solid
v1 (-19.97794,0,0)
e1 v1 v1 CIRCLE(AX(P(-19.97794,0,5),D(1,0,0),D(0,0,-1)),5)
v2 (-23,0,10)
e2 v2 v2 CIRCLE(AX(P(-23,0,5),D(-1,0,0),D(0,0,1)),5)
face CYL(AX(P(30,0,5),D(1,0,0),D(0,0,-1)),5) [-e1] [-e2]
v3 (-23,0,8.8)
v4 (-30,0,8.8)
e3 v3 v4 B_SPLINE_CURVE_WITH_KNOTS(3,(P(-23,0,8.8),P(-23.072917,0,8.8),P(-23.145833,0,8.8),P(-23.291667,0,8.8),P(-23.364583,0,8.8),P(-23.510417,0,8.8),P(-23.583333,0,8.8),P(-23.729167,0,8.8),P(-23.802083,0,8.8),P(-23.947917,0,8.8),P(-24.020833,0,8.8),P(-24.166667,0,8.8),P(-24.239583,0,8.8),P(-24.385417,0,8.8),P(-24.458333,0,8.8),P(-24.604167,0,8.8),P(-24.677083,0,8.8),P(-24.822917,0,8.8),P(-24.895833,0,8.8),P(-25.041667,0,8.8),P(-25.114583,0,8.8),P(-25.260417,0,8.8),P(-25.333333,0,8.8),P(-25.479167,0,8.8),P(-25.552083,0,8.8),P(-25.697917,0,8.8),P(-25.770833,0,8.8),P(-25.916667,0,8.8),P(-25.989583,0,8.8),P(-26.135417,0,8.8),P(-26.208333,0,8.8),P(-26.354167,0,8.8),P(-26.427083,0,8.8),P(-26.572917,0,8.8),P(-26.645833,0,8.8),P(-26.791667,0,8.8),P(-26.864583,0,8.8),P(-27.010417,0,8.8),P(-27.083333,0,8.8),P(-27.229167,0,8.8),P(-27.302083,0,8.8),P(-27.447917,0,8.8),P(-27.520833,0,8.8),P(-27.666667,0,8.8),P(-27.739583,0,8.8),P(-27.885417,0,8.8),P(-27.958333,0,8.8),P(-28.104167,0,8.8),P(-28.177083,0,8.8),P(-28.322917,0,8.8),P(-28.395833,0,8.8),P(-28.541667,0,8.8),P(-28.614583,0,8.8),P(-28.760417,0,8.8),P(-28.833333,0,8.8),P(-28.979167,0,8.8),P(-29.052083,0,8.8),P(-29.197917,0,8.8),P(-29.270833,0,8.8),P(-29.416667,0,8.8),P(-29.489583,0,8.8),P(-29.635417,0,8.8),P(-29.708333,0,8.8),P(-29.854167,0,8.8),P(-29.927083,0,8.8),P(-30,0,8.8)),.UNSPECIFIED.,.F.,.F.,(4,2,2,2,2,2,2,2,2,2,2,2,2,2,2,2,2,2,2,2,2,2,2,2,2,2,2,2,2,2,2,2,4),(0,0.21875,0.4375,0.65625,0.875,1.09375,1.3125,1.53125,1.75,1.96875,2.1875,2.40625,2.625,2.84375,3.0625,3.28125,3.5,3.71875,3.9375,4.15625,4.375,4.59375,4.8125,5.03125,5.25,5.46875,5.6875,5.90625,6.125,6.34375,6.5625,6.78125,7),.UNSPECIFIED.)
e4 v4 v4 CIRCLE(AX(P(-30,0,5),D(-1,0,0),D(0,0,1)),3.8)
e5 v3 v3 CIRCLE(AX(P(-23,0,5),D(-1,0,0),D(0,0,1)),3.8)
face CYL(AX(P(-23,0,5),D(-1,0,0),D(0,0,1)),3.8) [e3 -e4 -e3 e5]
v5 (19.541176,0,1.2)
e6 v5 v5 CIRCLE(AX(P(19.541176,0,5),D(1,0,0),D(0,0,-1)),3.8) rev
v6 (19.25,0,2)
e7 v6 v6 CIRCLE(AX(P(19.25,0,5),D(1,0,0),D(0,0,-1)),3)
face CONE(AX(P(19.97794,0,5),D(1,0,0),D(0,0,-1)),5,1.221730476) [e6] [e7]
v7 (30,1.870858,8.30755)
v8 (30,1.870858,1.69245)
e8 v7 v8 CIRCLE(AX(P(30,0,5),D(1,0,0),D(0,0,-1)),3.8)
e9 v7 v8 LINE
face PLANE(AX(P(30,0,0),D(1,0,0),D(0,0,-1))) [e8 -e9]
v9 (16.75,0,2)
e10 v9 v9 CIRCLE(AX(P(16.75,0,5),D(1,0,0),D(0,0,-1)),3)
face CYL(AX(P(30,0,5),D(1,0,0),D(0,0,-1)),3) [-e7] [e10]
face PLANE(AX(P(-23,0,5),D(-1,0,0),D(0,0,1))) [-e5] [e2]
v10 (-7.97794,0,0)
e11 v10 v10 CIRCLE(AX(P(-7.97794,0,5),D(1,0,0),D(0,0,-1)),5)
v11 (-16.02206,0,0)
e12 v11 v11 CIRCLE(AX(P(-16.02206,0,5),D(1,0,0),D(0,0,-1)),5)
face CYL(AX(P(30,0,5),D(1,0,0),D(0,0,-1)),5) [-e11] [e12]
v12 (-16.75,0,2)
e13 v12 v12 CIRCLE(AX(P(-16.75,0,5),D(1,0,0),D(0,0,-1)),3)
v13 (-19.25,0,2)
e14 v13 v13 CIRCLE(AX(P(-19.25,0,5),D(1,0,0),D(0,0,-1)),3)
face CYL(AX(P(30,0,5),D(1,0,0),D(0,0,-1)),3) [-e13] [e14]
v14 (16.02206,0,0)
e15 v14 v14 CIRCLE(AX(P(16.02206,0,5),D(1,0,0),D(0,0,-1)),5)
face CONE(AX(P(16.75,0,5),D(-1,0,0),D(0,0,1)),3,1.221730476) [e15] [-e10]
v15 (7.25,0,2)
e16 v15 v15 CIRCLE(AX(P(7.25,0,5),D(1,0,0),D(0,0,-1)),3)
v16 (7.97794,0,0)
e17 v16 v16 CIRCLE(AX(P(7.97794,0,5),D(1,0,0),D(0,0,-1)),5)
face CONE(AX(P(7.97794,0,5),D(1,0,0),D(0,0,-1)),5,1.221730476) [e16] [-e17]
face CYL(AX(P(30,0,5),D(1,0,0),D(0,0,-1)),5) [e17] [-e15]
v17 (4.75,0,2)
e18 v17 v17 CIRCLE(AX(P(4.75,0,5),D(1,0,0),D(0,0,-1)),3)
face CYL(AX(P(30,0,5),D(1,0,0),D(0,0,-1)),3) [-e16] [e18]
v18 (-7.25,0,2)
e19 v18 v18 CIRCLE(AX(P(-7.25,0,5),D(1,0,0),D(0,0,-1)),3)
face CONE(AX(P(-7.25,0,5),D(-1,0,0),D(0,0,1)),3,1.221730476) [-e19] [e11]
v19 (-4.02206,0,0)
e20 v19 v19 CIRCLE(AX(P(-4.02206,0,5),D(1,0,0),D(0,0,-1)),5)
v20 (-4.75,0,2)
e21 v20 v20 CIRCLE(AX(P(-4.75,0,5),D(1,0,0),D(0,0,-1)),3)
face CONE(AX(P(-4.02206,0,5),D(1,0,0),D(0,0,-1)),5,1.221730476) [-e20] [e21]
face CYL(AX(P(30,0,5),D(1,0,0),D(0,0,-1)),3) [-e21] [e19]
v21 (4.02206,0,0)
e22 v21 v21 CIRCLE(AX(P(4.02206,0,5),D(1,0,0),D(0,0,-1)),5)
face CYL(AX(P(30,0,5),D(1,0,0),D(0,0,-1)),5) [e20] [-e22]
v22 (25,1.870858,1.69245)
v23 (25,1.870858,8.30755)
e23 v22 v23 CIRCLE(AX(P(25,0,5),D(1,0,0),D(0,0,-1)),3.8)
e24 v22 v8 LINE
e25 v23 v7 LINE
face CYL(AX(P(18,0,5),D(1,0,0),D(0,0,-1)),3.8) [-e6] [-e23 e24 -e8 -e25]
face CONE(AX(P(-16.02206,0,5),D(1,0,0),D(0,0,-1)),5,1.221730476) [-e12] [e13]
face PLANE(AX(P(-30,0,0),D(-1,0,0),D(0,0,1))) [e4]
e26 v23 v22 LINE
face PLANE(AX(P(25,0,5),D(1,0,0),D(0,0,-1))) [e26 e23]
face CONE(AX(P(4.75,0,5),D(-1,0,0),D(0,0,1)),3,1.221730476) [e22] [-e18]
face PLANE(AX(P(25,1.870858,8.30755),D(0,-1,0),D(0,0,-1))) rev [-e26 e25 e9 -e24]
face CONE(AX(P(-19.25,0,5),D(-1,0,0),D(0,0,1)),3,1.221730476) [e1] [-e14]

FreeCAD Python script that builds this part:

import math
import FreeCAD as App
import Part
import Sketcher
from FreeCAD import Vector
Q = App.Units.Quantity

doc = App.newDocument("Part")
params = doc.addObject("Spreadsheet::Sheet", "Params")
for row, (alias, value) in enumerate([
    ("sketch1_width", "60 mm"),
    ("sketch1_height", "5 mm"),
    ("sketch1_width2", "2.5 mm"),
    ("revolution_angle", "360 deg"),
    ("sketch2_diameter", "10 mm"),
    ("sketch2_diameter2", "7.6 mm"),
    ("pocket1_length", "7 mm"),
    ("sketch3_diameter", "10 mm"),
    ("sketch3_diameter2", "7.6 mm"),
    ("pocket2_length", "12 mm"),
    ("sketch4_radius", "3.8 mm"),
    ("pocket3_length", "5 mm"),
], start=1):
    params.set(f"A{row}", alias)
    params.set(f"B{row}", "=" + value)
    params.setAlias(f"B{row}", alias)

body = doc.addObject("PartDesign::Body", "Body")

# Sketch on XZ plane
sketch1 = body.newObject("Sketcher::SketchObject", "Sketch")
sketch1.AttachmentSupport = (doc.getObject("XZ_Plane"), [""])
sketch1.MapMode = "FlatFace"
sketch1.addGeometry([
    Part.LineSegment(Vector(-30, 5, 0), Vector(30, 5, 0)),  # 0
    Part.LineSegment(Vector(30, 5, 0), Vector(30, 0, 0)),  # 1
    Part.LineSegment(Vector(30, 0, 0), Vector(20, 0, 0)),  # 2
    Part.LineSegment(Vector(20, 0, 0), Vector(19.2, 2, 0)),  # 3
    Part.LineSegment(Vector(19.2, 2, 0), Vector(16.8, 2, 0)),  # 4
    Part.LineSegment(Vector(16.8, 2, 0), Vector(16, 0, 0)),  # 5
    Part.LineSegment(Vector(16, 0, 0), Vector(8, 0, 0)),  # 6
    Part.LineSegment(Vector(8, 0, 0), Vector(7.2, 2, 0)),  # 7
    Part.LineSegment(Vector(7.2, 2, 0), Vector(4.8, 2, 0)),  # 8
    Part.LineSegment(Vector(4.8, 2, 0), Vector(4, 0, 0)),  # 9
    Part.LineSegment(Vector(4, 0, 0), Vector(-4, 0, 0)),  # 10
    Part.LineSegment(Vector(-4, 0, 0), Vector(-4.8, 2, 0)),  # 11
    Part.LineSegment(Vector(-4.8, 2, 0), Vector(-7.2, 2, 0)),  # 12
    Part.LineSegment(Vector(-7.2, 2, 0), Vector(-8, 0, 0)),  # 13
    Part.LineSegment(Vector(-8, 0, 0), Vector(-16, 0, 0)),  # 14
    Part.LineSegment(Vector(-16, 0, 0), Vector(-16.8, 2, 0)),  # 15
    Part.LineSegment(Vector(-16.8, 2, 0), Vector(-19.2, 2, 0)),  # 16
    Part.LineSegment(Vector(-19.2, 2, 0), Vector(-20, 0, 0)),  # 17
    Part.LineSegment(Vector(-20, 0, 0), Vector(-30, 0, 0)),  # 18
    Part.LineSegment(Vector(-30, 0, 0), Vector(-30, 5, 0)),  # 19
], False)
sketch1.addGeometry(Part.LineSegment(Vector(30, 5, 0), Vector(-30, 5, 0)), True)  # axis
sketch1.addConstraint([
    Sketcher.Constraint("Coincident", 0, 2, 1, 1),
    Sketcher.Constraint("Coincident", 1, 2, 2, 1),
    Sketcher.Constraint("Coincident", 2, 2, 3, 1),
    Sketcher.Constraint("Coincident", 3, 2, 4, 1),
    Sketcher.Constraint("Coincident", 4, 2, 5, 1),
    Sketcher.Constraint("Coincident", 5, 2, 6, 1),
    Sketcher.Constraint("Coincident", 6, 2, 7, 1),
    Sketcher.Constraint("Coincident", 7, 2, 8, 1),
    Sketcher.Constraint("Coincident", 8, 2, 9, 1),
    Sketcher.Constraint("Coincident", 9, 2, 10, 1),
    Sketcher.Constraint("Coincident", 10, 2, 11, 1),
    Sketcher.Constraint("Coincident", 11, 2, 12, 1),
    Sketcher.Constraint("Coincident", 12, 2, 13, 1),
    Sketcher.Constraint("Coincident", 13, 2, 14, 1),
    Sketcher.Constraint("Coincident", 14, 2, 15, 1),
    Sketcher.Constraint("Coincident", 15, 2, 16, 1),
    Sketcher.Constraint("Coincident", 16, 2, 17, 1),
    Sketcher.Constraint("Coincident", 17, 2, 18, 1),
    Sketcher.Constraint("Coincident", 18, 2, 19, 1),
    Sketcher.Constraint("Coincident", 19, 2, 0, 1),
    Sketcher.Constraint("Horizontal", 0),
    Sketcher.Constraint("Vertical", 1),
    Sketcher.Constraint("Horizontal", 2),
    Sketcher.Constraint("Horizontal", 4),
    Sketcher.Constraint("Horizontal", 6),
    Sketcher.Constraint("Horizontal", 8),
    Sketcher.Constraint("Horizontal", 10),
    Sketcher.Constraint("Horizontal", 12),
    Sketcher.Constraint("Horizontal", 14),
    Sketcher.Constraint("Horizontal", 16),
    Sketcher.Constraint("Horizontal", 18),
    Sketcher.Constraint("Vertical", 19),
    Sketcher.Constraint("Horizontal", 20),
    Sketcher.Constraint("Coincident", 20, 1, 0, 2),
    Sketcher.Constraint("Symmetric", 9, 2, 10, 2, -1, 1),
    Sketcher.Constraint("Symmetric", 6, 2, 13, 2, -1, 1),
    Sketcher.Constraint("Symmetric", 2, 2, 17, 2, -1, 1),
    Sketcher.Constraint("Symmetric", 8, 2, 11, 2, -2),
    Sketcher.Constraint("Symmetric", 5, 2, 14, 2, -2),
    Sketcher.Constraint("Symmetric", 4, 2, 15, 2, -2),
    Sketcher.Constraint("Symmetric", 1, 2, 18, 2, -2),
    Sketcher.Constraint("Parallel", 3, 7),
    Sketcher.Constraint("Parallel", 5, 9),
    Sketcher.Constraint("Parallel", 7, 11),
    Sketcher.Constraint("Parallel", 9, 13),
    Sketcher.Constraint("Parallel", 13, 17),
    Sketcher.Constraint("Horizontal", 4, 2, 7, 2),
    Sketcher.Constraint("Vertical", 18, 2, 20, 2),
    Sketcher.Constraint("Equal", 4, 8),
    Sketcher.Constraint("Equal", 6, 10),
    Sketcher.Constraint("DistanceX", 0, 1, 0, 2, Q("60 mm")),
    Sketcher.Constraint("DistanceY", 1, 2, 1, 1, Q("5 mm")),
    Sketcher.Constraint("Angle", 3, Q("110 deg")),
    Sketcher.Constraint("DistanceX", 4, 2, 4, 1, Q("2.5 mm")),
    Sketcher.Constraint("DistanceY", -1, 1, 3, 2, Q("2 mm")),
    Sketcher.Constraint("DistanceX", 6, 2, 2, 2, Q("12 mm")),
])
sketch1.setExpression("Constraints[50]", "Params.sketch1_width")
sketch1.setExpression("Constraints[51]", "Params.sketch1_height")
sketch1.setExpression("Constraints[53]", "Params.sketch1_width2")
revolution = body.newObject("PartDesign::Revolution", "Revolution")
revolution.Profile = sketch1
revolution.ReferenceAxis = (sketch1, ["Axis0"])
revolution.setExpression("Angle", "Params.revolution_angle")

# Sketch on YZ plane
sketch2 = body.newObject("Sketcher::SketchObject", "Sketch001")
sketch2.AttachmentSupport = (doc.getObject("YZ_Plane"), [""])
sketch2.MapMode = "FlatFace"
sketch2.AttachmentOffset = App.Placement(Vector(0, 0, -23), App.Rotation())
sketch2.addGeometry([
    Part.Circle(Vector(0, 5, 0), Vector(0, 0, 1), 5),
    Part.Circle(Vector(0, 5, 0), Vector(0, 0, 1), 3.8),
], False)
sketch2.addConstraint([
    Sketcher.Constraint("Coincident", 1, 3, 0, 3),
    Sketcher.Constraint("PointOnObject", 0, 3, -2),
    Sketcher.Constraint("Diameter", 0, Q("10 mm")),
    Sketcher.Constraint("Diameter", 1, Q("7.6 mm")),
    Sketcher.Constraint("DistanceY", -1, 1, 0, 3, Q("5 mm")),
])
sketch2.setExpression("Constraints[2]", "Params.sketch2_diameter")
sketch2.setExpression("Constraints[3]", "Params.sketch2_diameter2")
pocket1 = body.newObject("PartDesign::Pocket", "Pocket")
pocket1.Profile = sketch2
pocket1.setExpression("Length", "Params.pocket1_length")

# Sketch on YZ plane
sketch3 = body.newObject("Sketcher::SketchObject", "Sketch002")
sketch3.AttachmentSupport = (doc.getObject("YZ_Plane"), [""])
sketch3.MapMode = "FlatFace"
sketch3.AttachmentOffset = App.Placement(Vector(0, 0, 30), App.Rotation())
sketch3.addGeometry([
    Part.Circle(Vector(0, 5, 0), Vector(0, 0, 1), 5),
    Part.Circle(Vector(0, 5, 0), Vector(0, 0, 1), 3.8),
], False)
sketch3.addConstraint([
    Sketcher.Constraint("Coincident", 1, 3, 0, 3),
    Sketcher.Constraint("PointOnObject", 0, 3, -2),
    Sketcher.Constraint("Diameter", 0, Q("10 mm")),
    Sketcher.Constraint("Diameter", 1, Q("7.6 mm")),
    Sketcher.Constraint("DistanceY", -1, 1, 0, 3, Q("5 mm")),
])
sketch3.setExpression("Constraints[2]", "Params.sketch3_diameter")
sketch3.setExpression("Constraints[3]", "Params.sketch3_diameter2")
pocket2 = body.newObject("PartDesign::Pocket", "Pocket001")
pocket2.Profile = sketch3
pocket2.setExpression("Length", "Params.pocket2_length")

# Sketch on YZ plane
sketch4 = body.newObject("Sketcher::SketchObject", "Sketch003")
sketch4.AttachmentSupport = (doc.getObject("YZ_Plane"), [""])
sketch4.MapMode = "FlatFace"
sketch4.AttachmentOffset = App.Placement(Vector(0, 0, 30), App.Rotation())
sketch4.addGeometry([
    Part.LineSegment(Vector(1.9, 8.3, 0), Vector(1.9, 1.7, 0)),
    Part.ArcOfCircle(Part.Circle(Vector(0, 5, 0), Vector(0, 0, 1), 3.8), math.radians(-61), math.radians(61)),
], False)
sketch4.addConstraint([
    Sketcher.Constraint("Coincident", 0, 1, 1, 2),
    Sketcher.Constraint("Coincident", 1, 1, 0, 2),
    Sketcher.Constraint("Vertical", 0),
    Sketcher.Constraint("PointOnObject", 1, 3, -2),
    Sketcher.Constraint("Radius", 1, Q("3.8 mm")),
    Sketcher.Constraint("DistanceY", -1, 1, 1, 3, Q("5 mm")),
    Sketcher.Constraint("DistanceY", 0, 2, 0, 1, Q("6.615101 mm")),
])
sketch4.setExpression("Constraints[4]", "Params.sketch4_radius")
pocket3 = body.newObject("PartDesign::Pocket", "Pocket002")
pocket3.Profile = sketch4
pocket3.setExpression("Length", "Params.pocket3_length")

doc.recompute()
